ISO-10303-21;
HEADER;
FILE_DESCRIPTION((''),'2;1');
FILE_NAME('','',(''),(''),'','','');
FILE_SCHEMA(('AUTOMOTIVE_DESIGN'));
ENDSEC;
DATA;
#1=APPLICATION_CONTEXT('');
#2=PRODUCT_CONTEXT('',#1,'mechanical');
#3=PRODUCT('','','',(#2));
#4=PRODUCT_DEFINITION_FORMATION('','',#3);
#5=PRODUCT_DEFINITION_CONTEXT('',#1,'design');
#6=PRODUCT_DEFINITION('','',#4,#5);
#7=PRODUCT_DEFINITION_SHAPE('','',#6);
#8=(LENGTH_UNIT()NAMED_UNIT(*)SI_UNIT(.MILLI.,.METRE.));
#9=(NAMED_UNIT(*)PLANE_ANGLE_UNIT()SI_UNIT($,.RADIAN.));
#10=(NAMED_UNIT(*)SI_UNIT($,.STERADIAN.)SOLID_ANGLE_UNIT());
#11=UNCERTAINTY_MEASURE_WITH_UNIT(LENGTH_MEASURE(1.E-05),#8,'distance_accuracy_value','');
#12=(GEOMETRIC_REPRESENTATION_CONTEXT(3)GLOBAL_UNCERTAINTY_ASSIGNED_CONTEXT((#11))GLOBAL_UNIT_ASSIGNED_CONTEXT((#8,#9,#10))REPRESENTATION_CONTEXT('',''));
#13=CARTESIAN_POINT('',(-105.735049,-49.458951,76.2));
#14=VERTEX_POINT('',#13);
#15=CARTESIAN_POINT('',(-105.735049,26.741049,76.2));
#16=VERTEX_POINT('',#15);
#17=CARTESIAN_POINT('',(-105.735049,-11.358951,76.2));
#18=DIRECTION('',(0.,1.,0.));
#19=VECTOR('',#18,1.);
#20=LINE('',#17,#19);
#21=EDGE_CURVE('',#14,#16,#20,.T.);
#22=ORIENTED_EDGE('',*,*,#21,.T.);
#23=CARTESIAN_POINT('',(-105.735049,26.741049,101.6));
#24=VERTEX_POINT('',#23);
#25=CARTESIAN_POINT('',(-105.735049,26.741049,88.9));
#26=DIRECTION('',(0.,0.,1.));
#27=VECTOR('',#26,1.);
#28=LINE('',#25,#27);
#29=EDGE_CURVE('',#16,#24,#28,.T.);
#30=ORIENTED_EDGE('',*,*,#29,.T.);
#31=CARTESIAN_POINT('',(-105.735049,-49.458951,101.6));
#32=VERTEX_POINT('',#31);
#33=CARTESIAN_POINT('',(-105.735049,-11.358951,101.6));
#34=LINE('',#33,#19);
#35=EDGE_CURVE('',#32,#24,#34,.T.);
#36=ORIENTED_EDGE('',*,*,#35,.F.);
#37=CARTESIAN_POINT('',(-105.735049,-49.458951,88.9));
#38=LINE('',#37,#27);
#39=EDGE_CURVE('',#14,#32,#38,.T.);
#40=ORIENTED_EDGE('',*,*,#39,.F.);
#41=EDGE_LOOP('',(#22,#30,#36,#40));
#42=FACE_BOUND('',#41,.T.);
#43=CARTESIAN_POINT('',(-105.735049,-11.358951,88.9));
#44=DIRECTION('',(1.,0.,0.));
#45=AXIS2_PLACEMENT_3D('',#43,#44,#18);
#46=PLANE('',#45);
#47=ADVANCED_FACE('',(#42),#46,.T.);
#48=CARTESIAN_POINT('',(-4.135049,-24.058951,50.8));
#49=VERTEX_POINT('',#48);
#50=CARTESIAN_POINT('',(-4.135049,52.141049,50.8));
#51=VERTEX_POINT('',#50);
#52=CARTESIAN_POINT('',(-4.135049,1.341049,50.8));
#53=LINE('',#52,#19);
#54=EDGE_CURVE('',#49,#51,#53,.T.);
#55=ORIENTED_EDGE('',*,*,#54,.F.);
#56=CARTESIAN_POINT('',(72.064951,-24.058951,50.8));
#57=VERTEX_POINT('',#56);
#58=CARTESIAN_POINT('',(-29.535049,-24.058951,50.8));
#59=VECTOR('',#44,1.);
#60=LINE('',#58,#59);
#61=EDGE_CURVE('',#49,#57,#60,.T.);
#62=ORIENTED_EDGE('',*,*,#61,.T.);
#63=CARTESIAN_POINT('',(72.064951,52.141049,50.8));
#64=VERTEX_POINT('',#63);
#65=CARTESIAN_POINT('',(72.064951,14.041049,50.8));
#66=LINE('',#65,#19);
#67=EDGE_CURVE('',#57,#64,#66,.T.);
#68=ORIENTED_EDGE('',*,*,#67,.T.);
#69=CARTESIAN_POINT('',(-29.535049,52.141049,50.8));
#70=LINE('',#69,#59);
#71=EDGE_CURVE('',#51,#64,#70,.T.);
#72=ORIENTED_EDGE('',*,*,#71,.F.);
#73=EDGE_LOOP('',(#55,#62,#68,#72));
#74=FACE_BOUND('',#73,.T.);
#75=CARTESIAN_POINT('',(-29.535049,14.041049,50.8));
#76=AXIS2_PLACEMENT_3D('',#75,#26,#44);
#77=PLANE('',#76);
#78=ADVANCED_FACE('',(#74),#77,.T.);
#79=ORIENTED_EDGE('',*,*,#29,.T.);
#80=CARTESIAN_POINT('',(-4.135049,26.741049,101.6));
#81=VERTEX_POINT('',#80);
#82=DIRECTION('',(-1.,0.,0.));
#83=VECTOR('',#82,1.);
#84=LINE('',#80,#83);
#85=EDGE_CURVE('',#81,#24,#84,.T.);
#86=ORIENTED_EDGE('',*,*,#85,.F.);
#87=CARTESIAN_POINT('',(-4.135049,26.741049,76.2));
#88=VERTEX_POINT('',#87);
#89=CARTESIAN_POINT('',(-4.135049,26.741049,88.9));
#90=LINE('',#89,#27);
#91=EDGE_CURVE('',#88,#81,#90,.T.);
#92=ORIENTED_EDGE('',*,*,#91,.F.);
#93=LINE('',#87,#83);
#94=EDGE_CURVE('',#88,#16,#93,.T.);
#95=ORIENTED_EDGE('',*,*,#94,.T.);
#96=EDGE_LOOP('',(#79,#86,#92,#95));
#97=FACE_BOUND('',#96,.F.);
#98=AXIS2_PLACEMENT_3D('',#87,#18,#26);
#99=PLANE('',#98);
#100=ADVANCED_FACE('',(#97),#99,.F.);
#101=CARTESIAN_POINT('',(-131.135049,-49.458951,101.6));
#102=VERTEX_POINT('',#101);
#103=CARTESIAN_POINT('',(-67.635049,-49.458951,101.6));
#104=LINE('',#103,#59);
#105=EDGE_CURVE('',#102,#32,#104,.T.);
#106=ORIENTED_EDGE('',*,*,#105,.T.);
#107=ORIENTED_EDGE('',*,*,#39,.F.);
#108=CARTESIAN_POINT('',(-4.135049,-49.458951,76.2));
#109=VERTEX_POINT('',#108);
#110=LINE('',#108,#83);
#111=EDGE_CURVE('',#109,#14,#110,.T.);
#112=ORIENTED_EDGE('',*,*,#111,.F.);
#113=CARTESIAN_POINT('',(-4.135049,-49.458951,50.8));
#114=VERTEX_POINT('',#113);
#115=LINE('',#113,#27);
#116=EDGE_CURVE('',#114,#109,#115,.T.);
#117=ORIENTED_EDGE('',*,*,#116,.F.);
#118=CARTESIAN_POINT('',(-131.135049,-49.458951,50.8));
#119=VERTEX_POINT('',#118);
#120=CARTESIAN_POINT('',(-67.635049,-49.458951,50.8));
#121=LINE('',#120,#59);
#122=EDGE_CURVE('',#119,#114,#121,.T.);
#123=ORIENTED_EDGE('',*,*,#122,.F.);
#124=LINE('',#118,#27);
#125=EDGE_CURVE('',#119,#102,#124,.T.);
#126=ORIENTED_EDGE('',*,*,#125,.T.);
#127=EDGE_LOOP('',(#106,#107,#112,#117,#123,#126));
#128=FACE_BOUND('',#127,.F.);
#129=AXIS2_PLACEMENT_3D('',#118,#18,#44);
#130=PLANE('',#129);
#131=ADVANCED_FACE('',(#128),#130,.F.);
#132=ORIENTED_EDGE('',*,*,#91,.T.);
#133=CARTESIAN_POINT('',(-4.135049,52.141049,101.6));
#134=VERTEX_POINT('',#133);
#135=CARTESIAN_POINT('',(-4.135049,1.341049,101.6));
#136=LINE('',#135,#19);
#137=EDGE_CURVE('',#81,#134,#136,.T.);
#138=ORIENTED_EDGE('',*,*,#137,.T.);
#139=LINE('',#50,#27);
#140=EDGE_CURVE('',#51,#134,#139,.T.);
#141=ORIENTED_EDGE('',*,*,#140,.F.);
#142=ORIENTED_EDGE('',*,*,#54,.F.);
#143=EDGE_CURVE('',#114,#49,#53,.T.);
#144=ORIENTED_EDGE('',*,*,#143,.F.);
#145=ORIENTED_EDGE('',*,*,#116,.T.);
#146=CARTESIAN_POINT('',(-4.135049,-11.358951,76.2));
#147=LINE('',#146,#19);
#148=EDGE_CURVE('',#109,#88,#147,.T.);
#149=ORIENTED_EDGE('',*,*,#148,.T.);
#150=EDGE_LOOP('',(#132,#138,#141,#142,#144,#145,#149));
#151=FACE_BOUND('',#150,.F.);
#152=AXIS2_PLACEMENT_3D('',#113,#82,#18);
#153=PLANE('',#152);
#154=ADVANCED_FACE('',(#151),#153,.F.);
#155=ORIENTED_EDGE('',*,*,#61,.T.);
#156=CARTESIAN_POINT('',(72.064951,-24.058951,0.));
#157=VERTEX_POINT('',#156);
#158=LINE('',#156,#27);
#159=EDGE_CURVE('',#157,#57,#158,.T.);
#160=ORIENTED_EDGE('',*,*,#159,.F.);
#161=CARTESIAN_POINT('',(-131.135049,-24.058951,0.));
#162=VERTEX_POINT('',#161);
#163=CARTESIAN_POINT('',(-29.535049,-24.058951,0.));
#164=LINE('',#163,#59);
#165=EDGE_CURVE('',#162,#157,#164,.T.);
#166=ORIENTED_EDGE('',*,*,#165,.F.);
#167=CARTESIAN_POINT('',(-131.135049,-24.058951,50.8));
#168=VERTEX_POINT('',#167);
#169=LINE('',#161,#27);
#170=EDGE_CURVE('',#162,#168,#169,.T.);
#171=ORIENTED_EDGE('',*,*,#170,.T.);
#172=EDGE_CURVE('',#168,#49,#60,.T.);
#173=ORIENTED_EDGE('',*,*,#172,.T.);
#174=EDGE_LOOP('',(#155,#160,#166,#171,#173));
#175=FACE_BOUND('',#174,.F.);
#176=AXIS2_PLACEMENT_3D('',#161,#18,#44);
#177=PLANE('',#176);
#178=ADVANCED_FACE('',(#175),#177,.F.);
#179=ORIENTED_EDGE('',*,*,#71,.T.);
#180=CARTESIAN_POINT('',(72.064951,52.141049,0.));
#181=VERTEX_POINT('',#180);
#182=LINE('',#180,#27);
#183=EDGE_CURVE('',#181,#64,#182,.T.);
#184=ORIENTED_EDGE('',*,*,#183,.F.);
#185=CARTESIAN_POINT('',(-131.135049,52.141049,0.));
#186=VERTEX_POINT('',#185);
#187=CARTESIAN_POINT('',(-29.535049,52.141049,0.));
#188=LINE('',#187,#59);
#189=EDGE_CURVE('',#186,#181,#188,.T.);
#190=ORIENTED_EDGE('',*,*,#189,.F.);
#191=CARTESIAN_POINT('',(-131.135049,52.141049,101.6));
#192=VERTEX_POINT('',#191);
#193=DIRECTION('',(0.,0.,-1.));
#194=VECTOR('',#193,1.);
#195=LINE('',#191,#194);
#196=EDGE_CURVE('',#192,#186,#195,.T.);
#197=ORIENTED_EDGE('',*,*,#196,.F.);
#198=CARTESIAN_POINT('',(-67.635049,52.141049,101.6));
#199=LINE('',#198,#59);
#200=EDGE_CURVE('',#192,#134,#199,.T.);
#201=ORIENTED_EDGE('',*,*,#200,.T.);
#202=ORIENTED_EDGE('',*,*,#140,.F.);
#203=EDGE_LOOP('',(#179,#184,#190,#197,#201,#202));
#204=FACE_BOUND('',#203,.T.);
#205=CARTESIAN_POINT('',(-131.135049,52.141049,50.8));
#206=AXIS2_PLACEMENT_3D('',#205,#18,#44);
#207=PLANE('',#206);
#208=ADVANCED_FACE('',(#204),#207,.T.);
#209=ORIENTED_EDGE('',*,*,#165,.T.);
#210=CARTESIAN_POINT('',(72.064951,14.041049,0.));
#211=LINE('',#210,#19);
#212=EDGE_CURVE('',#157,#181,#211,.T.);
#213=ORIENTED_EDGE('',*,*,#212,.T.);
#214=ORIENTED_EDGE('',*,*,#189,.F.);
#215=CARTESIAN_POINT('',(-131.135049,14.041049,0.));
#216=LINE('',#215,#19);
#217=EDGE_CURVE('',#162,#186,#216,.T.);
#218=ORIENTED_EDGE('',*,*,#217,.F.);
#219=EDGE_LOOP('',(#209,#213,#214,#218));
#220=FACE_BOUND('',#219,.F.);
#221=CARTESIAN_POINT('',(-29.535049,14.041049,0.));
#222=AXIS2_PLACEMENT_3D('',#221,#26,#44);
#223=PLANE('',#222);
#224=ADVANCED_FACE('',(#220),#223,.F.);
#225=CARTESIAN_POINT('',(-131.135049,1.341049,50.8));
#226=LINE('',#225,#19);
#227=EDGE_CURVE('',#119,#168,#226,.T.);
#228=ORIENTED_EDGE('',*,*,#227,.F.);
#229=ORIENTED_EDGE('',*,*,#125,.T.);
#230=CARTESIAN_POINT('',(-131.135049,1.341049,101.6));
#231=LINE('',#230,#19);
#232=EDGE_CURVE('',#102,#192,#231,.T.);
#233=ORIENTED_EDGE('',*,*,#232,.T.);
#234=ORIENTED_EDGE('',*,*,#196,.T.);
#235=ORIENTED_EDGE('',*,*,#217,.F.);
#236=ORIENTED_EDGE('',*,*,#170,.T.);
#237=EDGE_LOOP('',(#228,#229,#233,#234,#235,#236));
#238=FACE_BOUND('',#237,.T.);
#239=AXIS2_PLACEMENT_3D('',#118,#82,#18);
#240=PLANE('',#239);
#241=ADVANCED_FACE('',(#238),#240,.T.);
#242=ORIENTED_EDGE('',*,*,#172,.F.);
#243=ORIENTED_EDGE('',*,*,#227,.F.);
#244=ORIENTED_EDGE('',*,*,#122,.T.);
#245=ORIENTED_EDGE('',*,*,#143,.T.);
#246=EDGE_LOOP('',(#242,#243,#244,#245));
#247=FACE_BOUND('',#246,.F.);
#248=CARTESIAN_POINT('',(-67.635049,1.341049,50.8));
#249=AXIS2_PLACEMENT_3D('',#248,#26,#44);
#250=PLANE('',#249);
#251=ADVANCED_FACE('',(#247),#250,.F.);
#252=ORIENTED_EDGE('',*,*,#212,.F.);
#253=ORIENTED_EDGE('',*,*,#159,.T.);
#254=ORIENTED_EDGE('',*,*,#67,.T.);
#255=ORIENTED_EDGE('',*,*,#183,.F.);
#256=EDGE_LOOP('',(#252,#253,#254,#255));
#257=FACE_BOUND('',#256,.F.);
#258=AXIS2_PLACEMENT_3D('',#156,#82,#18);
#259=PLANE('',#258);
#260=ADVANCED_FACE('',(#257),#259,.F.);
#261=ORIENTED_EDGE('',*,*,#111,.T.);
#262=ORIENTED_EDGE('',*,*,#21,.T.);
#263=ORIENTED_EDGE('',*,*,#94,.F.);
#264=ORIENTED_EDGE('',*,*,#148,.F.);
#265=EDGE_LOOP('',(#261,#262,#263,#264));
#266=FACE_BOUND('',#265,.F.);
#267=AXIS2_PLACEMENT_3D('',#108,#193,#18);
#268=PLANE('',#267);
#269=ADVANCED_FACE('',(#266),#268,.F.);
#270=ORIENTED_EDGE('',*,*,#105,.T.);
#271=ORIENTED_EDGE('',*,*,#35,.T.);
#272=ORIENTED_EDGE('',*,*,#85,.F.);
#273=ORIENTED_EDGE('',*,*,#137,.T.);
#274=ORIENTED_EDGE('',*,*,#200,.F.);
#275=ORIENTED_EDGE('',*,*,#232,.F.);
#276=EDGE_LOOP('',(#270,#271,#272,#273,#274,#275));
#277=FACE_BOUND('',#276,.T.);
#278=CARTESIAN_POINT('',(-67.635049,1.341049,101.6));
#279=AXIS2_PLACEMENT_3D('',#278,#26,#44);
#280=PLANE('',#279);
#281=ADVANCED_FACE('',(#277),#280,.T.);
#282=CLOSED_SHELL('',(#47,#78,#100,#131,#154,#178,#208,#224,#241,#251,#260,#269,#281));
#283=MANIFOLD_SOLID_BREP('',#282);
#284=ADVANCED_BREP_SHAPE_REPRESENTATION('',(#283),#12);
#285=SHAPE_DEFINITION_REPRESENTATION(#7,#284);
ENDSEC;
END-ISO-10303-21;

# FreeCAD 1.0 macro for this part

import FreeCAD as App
import Part
import Sketcher
Q = App.Units.Quantity

doc = App.newDocument("Part")
params = doc.addObject("Spreadsheet::Sheet", "Params")
for row, (alias, value) in enumerate([
    ("sketch1_width", "8 in"),
    ("sketch1_height", "3 in"),
    ("pad1_length", "2 in"),
    ("sketch2_width", "5 in"),
    ("sketch2_height", "4 in"),
    ("pad2_length", "2 in"),
    ("sketch3_width", "3 in"),
    ("sketch3_height", "1 in"),
    ("pocket1_length", "4 in"),
], start=1):
    params.set(f"A{row}", alias)
    params.set(f"B{row}", "=" + value)
    params.setAlias(f"B{row}", alias)

body = doc.addObject("PartDesign::Body", "Body")

# Sketch on XY plane
sketch1 = doc.addObject("Sketcher::SketchObject", "Sketch")
body.addObject(sketch1)
sketch1.AttachmentSupport = (doc.XY_Plane, [""])
sketch1.MapMode = "FlatFace"
sketch1.addGeometry([
    Part.LineSegment(App.Vector(-131, 52, 0), App.Vector(-131, -24, 0)),
    Part.LineSegment(App.Vector(-131, -24, 0), App.Vector(72, -24, 0)),
    Part.LineSegment(App.Vector(72, -24, 0), App.Vector(72, 52, 0)),
    Part.LineSegment(App.Vector(72, 52, 0), App.Vector(-131, 52, 0)),
], False)
sketch1.addConstraint([
    Sketcher.Constraint("Coincident", 0, 2, 1, 1),
    Sketcher.Constraint("Coincident", 1, 2, 2, 1),
    Sketcher.Constraint("Coincident", 2, 2, 3, 1),
    Sketcher.Constraint("Coincident", 3, 2, 0, 1),
    Sketcher.Constraint("Vertical", 0),
    Sketcher.Constraint("Horizontal", 1),
    Sketcher.Constraint("Vertical", 2),
    Sketcher.Constraint("Horizontal", 3),
    Sketcher.Constraint("DistanceX", 1, 1, 1, 2, Q("8 in")),
    Sketcher.Constraint("DistanceY", 0, 2, 0, 1, Q("3 in")),
    Sketcher.Constraint("DistanceX", 0, 2, -1, 1, Q("131.135049 mm")),
    Sketcher.Constraint("DistanceY", 0, 2, -1, 1, Q("24.058951 mm")),
])
sketch1.setExpression("Constraints[8]", "Params.sketch1_width")
sketch1.setExpression("Constraints[9]", "Params.sketch1_height")
pad1 = doc.addObject("PartDesign::Pad", "Pad")
body.addObject(pad1)
pad1.Profile = sketch1
pad1.setExpression("Length", "Params.pad1_length")

# Sketch on XY plane
sketch2 = doc.addObject("Sketcher::SketchObject", "Sketch001")
body.addObject(sketch2)
sketch2.AttachmentSupport = (doc.XY_Plane, [""])
sketch2.MapMode = "FlatFace"
sketch2.AttachmentOffset = App.Placement(App.Vector(0, 0, 2 * 25.4), App.Rotation())
sketch2.addGeometry([
    Part.LineSegment(App.Vector(-131, 52, 0), App.Vector(-131, -49, 0)),
    Part.LineSegment(App.Vector(-131, -49, 0), App.Vector(-4, -49, 0)),
    Part.LineSegment(App.Vector(-4, -49, 0), App.Vector(-4, 52, 0)),
    Part.LineSegment(App.Vector(-4, 52, 0), App.Vector(-131, 52, 0)),
], False)
sketch2.addConstraint([
    Sketcher.Constraint("Coincident", 0, 2, 1, 1),
    Sketcher.Constraint("Coincident", 1, 2, 2, 1),
    Sketcher.Constraint("Coincident", 2, 2, 3, 1),
    Sketcher.Constraint("Coincident", 3, 2, 0, 1),
    Sketcher.Constraint("Vertical", 0),
    Sketcher.Constraint("Horizontal", 1),
    Sketcher.Constraint("Vertical", 2),
    Sketcher.Constraint("Horizontal", 3),
    Sketcher.Constraint("DistanceX", 1, 1, 1, 2, Q("5 in")),
    Sketcher.Constraint("DistanceY", 0, 2, 0, 1, Q("4 in")),
    Sketcher.Constraint("DistanceX", 0, 2, -1, 1, Q("131.135049 mm")),
    Sketcher.Constraint("DistanceY", 0, 2, -1, 1, Q("49.458951 mm")),
])
sketch2.setExpression("Constraints[8]", "Params.sketch2_width")
sketch2.setExpression("Constraints[9]", "Params.sketch2_height")
pad2 = doc.addObject("PartDesign::Pad", "Pad001")
body.addObject(pad2)
pad2.Profile = sketch2
pad2.setExpression("Length", "Params.pad2_length")

# Sketch on YZ plane
sketch3 = doc.addObject("Sketcher::SketchObject", "Sketch002")
body.addObject(sketch3)
sketch3.AttachmentSupport = (doc.YZ_Plane, [""])
sketch3.MapMode = "FlatFace"
sketch3.AttachmentOffset = App.Placement(App.Vector(0, 0, -4.135049), App.Rotation())
sketch3.addGeometry([
    Part.LineSegment(App.Vector(-49, 102, 0), App.Vector(-49, 76, 0)),
    Part.LineSegment(App.Vector(-49, 76, 0), App.Vector(27, 76, 0)),
    Part.LineSegment(App.Vector(27, 76, 0), App.Vector(27, 102, 0)),
    Part.LineSegment(App.Vector(27, 102, 0), App.Vector(-49, 102, 0)),
], False)
sketch3.addConstraint([
    Sketcher.Constraint("Coincident", 0, 2, 1, 1),
    Sketcher.Constraint("Coincident", 1, 2, 2, 1),
    Sketcher.Constraint("Coincident", 2, 2, 3, 1),
    Sketcher.Constraint("Coincident", 3, 2, 0, 1),
    Sketcher.Constraint("Vertical", 0),
    Sketcher.Constraint("Horizontal", 1),
    Sketcher.Constraint("Vertical", 2),
    Sketcher.Constraint("Horizontal", 3),
    Sketcher.Constraint("DistanceX", 1, 1, 1, 2, Q("3 in")),
    Sketcher.Constraint("DistanceY", 0, 2, 0, 1, Q("1 in")),
    Sketcher.Constraint("DistanceY", -1, 1, 0, 2, Q("3 in")),
    Sketcher.Constraint("DistanceX", 0, 2, -1, 1, Q("49.458951 mm")),
])
sketch3.setExpression("Constraints[8]", "Params.sketch3_width")
sketch3.setExpression("Constraints[9]", "Params.sketch3_height")
pocket1 = doc.addObject("PartDesign::Pocket", "Pocket")
body.addObject(pocket1)
pocket1.Profile = sketch3
pocket1.setExpression("Length", "Params.pocket1_length")

doc.recompute()
